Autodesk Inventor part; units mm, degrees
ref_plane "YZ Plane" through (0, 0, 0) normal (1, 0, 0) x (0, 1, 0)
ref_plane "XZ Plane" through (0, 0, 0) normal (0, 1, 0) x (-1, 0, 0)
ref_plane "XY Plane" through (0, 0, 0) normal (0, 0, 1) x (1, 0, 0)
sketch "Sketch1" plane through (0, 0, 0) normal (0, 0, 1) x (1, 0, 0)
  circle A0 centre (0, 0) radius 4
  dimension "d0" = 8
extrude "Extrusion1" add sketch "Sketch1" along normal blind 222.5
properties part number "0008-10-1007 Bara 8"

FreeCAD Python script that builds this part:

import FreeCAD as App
import Part
import Sketcher
from FreeCAD import Vector

doc = App.newDocument("Part")
body = doc.addObject("PartDesign::Body", "Body")

# Sketch on XY plane
sketch1 = body.newObject("Sketcher::SketchObject", "Sketch")
sketch1.AttachmentSupport = (doc.getObject("XY_Plane"), [""])
sketch1.MapMode = "FlatFace"
sketch1.addGeometry(Part.Circle(Vector(0, 0, 0), Vector(0, 0, 1), 4), False)
sketch1.addConstraint(Sketcher.Constraint("Coincident", 0, 3, -1, 1))
sketch1.addConstraint(Sketcher.Constraint("Diameter", 0, 8.0))
pad1 = body.newObject("PartDesign::Pad", "Pad")
pad1.Profile = sketch1
pad1.Length = 222.5

doc.recompute()
